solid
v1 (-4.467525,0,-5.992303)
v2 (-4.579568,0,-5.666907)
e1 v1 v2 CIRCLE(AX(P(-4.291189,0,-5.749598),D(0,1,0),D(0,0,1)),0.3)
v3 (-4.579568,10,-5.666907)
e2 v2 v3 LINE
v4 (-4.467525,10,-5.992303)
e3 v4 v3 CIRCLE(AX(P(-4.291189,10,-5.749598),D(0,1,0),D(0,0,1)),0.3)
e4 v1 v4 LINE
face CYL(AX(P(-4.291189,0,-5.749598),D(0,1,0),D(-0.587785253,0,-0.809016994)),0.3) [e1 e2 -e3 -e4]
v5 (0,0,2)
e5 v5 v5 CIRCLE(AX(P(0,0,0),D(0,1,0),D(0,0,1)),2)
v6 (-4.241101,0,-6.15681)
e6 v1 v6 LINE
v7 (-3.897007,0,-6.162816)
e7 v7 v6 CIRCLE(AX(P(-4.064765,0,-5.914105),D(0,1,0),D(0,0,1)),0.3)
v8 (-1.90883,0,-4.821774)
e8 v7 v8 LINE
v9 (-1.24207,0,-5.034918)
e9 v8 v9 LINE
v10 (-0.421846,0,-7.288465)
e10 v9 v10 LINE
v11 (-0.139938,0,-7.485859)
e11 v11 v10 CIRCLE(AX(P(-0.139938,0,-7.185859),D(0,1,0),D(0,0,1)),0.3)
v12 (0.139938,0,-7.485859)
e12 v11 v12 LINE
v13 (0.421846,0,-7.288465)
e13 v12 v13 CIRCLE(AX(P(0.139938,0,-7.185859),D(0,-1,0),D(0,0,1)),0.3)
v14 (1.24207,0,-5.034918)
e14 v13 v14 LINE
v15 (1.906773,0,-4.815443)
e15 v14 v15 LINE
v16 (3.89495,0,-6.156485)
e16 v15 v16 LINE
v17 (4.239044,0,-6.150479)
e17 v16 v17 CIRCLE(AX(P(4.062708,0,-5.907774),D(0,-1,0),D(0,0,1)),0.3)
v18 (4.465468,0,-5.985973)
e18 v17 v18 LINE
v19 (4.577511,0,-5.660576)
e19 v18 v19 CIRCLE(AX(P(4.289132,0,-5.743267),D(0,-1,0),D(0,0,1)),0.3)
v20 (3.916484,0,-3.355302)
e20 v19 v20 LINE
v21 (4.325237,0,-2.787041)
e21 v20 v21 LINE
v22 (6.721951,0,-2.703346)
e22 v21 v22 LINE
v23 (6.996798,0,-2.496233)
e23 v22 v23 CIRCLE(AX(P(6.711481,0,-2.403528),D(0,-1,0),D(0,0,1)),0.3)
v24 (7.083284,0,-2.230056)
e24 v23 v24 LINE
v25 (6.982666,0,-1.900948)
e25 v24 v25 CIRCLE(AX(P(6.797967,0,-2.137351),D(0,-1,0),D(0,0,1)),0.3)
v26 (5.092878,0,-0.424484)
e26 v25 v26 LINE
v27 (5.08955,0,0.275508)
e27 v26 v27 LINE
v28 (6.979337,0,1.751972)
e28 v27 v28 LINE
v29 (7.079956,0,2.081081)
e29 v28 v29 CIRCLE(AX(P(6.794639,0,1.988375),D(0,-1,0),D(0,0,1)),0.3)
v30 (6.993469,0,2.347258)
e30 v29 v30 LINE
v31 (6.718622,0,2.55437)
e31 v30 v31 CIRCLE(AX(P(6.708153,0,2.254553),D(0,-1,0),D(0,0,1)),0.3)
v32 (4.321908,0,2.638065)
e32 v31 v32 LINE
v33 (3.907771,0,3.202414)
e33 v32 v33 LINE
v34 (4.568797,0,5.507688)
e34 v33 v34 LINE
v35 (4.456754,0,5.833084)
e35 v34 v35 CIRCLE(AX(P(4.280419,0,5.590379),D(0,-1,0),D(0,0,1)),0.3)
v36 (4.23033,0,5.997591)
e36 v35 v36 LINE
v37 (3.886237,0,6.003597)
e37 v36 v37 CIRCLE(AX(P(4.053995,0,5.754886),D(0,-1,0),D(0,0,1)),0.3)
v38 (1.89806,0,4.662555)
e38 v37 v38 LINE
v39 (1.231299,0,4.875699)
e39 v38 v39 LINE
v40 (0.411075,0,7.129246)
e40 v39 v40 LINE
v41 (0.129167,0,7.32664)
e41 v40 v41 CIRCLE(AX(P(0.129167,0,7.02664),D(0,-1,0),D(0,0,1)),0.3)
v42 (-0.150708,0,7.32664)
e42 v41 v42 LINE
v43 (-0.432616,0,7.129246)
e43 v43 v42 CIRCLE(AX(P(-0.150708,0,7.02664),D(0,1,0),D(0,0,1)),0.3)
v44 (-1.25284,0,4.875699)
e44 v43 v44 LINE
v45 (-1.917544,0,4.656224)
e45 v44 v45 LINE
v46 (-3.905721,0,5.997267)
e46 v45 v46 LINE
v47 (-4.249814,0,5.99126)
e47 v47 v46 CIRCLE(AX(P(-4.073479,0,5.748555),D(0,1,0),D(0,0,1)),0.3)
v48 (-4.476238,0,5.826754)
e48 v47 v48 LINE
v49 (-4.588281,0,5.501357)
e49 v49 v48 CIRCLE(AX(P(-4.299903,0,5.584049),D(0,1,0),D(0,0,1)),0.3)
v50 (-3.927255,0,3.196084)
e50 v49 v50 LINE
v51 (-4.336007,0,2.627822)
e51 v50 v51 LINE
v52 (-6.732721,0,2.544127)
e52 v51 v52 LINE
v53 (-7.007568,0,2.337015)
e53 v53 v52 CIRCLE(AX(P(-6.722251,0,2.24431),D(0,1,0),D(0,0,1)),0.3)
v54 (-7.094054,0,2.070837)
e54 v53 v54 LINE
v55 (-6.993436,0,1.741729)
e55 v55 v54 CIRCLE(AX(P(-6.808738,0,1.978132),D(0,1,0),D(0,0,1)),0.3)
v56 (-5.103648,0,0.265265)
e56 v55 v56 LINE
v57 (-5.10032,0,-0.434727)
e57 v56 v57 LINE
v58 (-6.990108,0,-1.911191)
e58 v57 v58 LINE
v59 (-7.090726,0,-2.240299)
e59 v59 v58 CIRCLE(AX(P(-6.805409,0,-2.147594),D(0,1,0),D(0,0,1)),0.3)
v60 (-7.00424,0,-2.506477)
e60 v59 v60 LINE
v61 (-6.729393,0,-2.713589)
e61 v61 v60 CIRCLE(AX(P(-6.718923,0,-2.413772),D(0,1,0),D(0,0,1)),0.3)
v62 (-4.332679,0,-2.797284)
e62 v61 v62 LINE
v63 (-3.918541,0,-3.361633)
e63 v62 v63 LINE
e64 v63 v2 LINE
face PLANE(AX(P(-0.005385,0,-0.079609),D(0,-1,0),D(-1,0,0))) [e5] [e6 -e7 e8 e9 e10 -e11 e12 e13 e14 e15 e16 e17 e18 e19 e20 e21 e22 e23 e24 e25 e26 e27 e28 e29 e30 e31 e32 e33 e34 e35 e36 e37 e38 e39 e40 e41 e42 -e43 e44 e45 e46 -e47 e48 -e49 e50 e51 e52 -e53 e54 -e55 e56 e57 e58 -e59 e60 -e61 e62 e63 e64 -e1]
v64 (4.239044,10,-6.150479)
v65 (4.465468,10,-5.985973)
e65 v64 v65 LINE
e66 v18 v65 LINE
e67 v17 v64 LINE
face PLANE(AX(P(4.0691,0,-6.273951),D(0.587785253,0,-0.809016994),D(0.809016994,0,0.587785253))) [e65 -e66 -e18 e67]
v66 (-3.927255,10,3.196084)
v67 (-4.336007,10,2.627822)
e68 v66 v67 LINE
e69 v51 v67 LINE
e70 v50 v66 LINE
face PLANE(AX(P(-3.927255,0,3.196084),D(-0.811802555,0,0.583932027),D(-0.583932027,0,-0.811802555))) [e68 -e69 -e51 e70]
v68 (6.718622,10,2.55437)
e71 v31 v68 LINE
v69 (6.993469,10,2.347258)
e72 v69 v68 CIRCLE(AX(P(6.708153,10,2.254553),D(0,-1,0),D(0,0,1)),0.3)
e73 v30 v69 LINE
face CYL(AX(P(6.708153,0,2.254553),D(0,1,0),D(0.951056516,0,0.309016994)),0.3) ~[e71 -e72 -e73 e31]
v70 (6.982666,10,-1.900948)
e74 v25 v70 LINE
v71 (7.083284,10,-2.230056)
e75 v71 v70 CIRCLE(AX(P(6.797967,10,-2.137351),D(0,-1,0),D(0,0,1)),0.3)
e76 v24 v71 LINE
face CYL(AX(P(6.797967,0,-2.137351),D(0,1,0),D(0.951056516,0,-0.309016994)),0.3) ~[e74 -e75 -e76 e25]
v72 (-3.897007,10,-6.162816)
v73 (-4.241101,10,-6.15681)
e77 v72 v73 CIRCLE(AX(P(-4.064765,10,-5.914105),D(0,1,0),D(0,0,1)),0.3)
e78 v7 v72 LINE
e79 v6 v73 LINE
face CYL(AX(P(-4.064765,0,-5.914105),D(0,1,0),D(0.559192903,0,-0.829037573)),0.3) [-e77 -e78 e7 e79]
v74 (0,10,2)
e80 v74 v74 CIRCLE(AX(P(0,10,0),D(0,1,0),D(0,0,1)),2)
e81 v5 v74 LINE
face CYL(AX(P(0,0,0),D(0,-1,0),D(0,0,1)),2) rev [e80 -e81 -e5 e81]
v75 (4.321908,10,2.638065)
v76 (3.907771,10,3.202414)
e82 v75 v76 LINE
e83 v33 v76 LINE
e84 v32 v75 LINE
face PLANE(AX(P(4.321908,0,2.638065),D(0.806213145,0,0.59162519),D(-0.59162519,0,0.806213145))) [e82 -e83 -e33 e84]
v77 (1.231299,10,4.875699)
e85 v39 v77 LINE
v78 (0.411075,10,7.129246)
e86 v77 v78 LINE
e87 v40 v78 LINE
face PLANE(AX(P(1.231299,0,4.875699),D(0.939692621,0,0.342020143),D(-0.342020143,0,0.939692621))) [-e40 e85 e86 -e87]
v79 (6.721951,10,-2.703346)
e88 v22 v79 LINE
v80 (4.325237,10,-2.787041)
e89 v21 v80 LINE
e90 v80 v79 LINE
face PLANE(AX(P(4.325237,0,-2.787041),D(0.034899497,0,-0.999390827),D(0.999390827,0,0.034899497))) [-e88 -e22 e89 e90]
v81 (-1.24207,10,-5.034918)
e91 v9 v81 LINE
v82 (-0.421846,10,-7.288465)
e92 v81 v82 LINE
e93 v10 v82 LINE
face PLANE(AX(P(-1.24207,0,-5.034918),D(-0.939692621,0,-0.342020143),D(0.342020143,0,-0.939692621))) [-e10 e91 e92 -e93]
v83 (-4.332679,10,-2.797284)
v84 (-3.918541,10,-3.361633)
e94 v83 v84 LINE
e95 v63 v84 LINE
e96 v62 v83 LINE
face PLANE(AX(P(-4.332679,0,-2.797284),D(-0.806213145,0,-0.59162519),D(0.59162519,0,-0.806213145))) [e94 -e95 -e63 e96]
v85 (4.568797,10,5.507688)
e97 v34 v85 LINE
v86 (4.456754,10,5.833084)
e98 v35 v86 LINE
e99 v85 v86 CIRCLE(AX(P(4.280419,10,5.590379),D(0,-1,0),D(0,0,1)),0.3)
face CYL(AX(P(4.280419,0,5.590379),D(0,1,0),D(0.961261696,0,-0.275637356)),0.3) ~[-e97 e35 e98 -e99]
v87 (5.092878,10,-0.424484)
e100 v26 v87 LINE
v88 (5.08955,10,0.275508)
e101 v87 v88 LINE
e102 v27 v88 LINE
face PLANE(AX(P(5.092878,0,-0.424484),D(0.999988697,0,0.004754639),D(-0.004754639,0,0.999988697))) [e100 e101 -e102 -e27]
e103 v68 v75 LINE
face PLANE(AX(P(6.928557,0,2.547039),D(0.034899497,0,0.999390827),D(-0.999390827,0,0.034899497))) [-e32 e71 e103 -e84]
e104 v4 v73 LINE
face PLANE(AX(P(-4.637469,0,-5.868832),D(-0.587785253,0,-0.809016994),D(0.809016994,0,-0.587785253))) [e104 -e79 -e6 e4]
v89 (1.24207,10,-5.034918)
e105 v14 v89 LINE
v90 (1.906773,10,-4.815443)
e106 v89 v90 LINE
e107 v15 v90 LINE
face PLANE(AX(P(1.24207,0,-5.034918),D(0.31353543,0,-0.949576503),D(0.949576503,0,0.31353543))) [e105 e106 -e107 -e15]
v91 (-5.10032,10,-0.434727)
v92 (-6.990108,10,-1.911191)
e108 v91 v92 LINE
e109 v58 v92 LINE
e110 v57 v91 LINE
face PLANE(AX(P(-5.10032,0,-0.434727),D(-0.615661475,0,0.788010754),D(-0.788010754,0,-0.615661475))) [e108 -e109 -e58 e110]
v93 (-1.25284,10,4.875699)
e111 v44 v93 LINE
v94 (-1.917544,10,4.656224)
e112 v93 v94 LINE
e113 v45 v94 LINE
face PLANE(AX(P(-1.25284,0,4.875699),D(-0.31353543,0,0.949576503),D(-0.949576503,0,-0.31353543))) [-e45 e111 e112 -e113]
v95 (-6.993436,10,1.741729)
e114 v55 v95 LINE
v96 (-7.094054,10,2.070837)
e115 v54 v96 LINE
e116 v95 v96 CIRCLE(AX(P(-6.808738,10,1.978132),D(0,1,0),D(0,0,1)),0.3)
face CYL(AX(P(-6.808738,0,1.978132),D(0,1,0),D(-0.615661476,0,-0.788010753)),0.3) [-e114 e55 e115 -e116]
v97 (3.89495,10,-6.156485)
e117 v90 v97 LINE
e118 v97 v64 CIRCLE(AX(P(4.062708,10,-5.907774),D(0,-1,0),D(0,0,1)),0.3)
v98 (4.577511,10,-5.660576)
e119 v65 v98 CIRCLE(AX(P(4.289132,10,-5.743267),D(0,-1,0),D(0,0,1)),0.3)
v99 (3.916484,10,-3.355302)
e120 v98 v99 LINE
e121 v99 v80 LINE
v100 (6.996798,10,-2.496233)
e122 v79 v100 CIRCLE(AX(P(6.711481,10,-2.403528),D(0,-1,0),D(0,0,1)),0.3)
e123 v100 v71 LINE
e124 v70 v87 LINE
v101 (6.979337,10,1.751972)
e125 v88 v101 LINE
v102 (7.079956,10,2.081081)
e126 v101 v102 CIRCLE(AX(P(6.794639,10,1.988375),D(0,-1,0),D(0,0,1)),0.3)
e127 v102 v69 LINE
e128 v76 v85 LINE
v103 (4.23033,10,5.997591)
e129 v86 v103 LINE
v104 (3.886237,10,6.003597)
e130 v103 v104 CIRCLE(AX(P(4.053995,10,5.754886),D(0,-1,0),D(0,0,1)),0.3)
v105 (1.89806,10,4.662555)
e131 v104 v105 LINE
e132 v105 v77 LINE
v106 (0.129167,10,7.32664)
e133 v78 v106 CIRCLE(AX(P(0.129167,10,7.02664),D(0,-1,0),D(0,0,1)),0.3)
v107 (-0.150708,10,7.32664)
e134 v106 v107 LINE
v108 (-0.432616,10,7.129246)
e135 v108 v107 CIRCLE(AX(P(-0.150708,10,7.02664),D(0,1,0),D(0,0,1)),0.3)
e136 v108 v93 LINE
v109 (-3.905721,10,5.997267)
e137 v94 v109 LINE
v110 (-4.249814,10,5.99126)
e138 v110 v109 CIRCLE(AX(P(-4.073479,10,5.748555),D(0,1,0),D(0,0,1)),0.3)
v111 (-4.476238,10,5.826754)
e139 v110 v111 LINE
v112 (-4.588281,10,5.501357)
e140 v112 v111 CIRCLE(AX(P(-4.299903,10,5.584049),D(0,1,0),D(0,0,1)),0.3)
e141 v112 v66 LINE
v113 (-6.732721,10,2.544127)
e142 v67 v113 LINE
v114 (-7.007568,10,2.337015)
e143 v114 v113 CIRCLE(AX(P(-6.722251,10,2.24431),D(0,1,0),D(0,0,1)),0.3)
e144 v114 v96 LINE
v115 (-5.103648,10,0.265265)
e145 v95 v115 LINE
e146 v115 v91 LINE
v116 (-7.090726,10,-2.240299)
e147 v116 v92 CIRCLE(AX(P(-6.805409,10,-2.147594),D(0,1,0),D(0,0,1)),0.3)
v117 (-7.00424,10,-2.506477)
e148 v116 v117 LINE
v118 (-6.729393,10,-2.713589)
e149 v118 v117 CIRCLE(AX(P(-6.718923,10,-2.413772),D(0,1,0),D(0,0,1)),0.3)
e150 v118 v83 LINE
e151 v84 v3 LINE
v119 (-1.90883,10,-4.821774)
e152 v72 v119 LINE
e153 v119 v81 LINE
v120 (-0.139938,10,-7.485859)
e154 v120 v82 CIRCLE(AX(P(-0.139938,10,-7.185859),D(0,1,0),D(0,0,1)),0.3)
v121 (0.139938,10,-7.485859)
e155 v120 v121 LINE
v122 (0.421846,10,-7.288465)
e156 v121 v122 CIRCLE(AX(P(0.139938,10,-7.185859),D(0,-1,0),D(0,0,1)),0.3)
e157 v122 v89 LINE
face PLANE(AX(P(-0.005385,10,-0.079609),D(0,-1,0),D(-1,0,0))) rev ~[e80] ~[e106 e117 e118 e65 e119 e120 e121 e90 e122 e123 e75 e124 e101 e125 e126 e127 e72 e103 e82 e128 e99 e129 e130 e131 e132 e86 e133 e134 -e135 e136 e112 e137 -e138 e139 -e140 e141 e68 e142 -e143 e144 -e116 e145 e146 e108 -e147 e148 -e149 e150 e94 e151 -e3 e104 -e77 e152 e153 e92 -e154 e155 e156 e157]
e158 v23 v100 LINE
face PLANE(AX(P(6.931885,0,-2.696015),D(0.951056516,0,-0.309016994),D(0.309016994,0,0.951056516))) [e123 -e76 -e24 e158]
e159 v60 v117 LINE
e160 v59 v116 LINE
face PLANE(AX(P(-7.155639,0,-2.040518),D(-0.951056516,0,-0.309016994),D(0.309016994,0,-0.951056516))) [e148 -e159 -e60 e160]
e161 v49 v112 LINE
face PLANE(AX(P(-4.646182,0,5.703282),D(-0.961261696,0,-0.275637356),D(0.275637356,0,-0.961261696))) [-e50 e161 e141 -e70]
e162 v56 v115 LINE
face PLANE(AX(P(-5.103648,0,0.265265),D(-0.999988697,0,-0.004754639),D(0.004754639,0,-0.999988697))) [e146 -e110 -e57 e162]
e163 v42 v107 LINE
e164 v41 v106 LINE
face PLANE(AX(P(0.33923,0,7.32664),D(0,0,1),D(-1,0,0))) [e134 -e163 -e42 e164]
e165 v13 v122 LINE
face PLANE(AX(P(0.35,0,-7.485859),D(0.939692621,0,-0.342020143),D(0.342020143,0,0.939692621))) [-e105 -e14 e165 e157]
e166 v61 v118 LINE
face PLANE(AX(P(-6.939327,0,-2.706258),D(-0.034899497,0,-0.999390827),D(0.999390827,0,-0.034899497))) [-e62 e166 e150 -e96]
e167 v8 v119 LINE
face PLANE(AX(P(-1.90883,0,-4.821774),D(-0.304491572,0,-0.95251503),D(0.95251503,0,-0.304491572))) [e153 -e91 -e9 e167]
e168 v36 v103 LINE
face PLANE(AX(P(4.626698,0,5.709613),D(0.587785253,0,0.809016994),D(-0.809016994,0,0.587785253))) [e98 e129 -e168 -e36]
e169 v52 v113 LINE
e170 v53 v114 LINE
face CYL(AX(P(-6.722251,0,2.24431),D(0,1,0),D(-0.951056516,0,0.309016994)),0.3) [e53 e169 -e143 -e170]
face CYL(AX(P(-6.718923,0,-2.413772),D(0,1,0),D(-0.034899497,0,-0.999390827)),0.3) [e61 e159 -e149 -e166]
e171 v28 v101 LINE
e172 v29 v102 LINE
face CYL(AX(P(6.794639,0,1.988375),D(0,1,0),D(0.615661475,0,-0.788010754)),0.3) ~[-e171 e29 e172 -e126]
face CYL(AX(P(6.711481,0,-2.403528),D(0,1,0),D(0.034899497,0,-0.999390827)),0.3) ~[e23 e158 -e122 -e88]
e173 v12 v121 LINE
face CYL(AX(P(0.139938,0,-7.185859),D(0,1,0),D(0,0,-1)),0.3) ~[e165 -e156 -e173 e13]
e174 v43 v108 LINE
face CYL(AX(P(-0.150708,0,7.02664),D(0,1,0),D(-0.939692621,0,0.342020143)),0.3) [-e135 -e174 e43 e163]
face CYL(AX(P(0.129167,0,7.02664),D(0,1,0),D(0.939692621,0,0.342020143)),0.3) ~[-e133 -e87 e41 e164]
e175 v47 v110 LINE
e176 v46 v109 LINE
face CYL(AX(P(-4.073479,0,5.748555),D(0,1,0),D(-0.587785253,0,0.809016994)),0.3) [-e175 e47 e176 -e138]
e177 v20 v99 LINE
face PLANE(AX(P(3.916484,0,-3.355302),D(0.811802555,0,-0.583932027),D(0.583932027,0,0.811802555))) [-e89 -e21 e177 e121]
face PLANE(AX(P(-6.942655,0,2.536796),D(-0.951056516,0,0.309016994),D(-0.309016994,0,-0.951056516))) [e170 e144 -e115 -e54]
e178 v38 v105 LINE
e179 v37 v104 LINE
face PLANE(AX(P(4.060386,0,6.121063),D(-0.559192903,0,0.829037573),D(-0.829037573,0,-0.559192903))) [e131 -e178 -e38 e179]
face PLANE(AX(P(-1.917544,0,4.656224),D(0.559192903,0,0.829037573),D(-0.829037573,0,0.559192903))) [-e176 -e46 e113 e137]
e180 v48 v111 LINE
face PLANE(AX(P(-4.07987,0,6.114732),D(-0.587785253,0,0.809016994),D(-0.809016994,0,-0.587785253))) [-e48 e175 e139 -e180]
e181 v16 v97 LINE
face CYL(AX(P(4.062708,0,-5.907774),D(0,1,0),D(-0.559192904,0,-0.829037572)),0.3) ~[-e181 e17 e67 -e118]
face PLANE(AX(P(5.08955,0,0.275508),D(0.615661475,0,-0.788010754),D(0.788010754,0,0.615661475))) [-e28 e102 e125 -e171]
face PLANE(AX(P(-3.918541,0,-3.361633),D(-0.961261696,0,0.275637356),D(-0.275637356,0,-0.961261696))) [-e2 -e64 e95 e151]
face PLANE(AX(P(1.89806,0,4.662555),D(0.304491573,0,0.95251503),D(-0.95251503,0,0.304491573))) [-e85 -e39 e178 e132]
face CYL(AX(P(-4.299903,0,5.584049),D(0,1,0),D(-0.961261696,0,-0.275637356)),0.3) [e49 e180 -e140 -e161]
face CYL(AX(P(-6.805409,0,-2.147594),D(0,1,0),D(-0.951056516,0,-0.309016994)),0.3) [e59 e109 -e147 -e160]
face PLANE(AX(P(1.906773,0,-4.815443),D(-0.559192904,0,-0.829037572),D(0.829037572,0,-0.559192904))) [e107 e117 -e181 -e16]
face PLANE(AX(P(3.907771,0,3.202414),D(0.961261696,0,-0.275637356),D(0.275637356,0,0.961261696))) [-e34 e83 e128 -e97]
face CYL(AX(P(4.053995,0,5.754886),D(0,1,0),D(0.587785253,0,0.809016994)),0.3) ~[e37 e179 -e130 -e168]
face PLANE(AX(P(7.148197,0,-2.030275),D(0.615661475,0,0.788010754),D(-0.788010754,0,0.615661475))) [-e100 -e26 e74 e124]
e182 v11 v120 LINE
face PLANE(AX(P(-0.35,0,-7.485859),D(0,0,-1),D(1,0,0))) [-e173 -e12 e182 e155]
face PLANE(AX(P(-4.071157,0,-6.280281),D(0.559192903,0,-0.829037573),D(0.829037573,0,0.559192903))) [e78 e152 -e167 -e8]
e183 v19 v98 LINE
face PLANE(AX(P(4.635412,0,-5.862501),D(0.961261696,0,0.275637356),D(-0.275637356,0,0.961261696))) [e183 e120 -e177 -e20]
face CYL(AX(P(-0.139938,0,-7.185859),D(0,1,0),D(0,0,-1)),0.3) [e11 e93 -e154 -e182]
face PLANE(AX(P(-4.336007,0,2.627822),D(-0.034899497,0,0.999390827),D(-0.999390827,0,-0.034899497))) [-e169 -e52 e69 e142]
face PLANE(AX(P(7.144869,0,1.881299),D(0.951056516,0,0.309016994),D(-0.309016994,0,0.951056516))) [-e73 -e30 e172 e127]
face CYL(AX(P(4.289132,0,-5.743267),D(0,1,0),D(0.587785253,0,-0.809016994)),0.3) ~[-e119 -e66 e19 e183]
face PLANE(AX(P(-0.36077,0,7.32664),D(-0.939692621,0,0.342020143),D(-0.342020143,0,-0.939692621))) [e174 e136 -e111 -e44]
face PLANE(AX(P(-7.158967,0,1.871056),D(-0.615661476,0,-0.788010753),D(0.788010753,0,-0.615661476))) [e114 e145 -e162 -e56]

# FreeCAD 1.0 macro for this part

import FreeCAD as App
import Part
import Sketcher
from FreeCAD import Vector
Q = App.Units.Quantity


def edges_at(feature, points):
    """Names of the edges that pass closest to the given points."""
    edges = feature.Shape.Edges
    near = lambda p: min(range(len(edges)), key=lambda i: edges[i].distToShape(Part.Vertex(*p))[0])
    return sorted({f"Edge{near(p) + 1}" for p in points})


def add_polygon(sketch, points):
    """Adds a closed chain of lines whose ends are joined by coincident constraints."""
    first, n = sketch.GeometryCount, len(points)
    for a, b in zip(points, points[1:] + points[:1]):
        sketch.addGeometry(Part.LineSegment(App.Vector(*a, 0), App.Vector(*b, 0)), False)
    for i in range(n):
        sketch.addConstraint(Sketcher.Constraint("Coincident", first + i, 2, first + (i + 1) % n, 1))

doc = App.newDocument("Part")
body = doc.addObject("PartDesign::Body", "Body")

sketch1 = body.newObject("Sketcher::SketchObject", "Sketch")
sketch1.AttachmentSupport = (doc.getObject("XZ_Plane"), [""])
sketch1.MapMode = "FlatFace"
add_polygon(sketch1, [(0.3, -7.5), (-0.3, -7.5), (-1.2, -5), (-1.9, -4.8), (-4.1, -6.3), (-4.6, -5.9), (-3.9, -3.4), (-4.3, -2.8), (-6.9, -2.7), (-7.2, -2), (-5.1, -0.4), (-5.1, 0.3), (-7.2, 1.9), (-6.9, 2.5), (-4.3, 2.6), (-3.9, 3.2), (-4.6, 5.7), (-4.1, 6.1), (-1.9, 4.7), (-1.3, 4.9), (-0.4, 7.3), (0.3, 7.3), (1.2, 4.9), (1.9, 4.7), (4.1, 6.1), (4.6, 5.7), (3.9, 3.2), (4.3, 2.6), (6.9, 2.5), (7.1, 1.9), (5.1, 0.3), (5.1, -0.4), (7.1, -2), (6.9, -2.7), (4.3, -2.8), (3.9, -3.4), (4.6, -5.9), (4.1, -6.3), (1.9, -4.8), (1.2, -5)])
sketch1.addGeometry(Part.Circle(Vector(0, 0, 0), Vector(0, 0, 1), 2), False)
sketch1.addConstraint([
    Sketcher.Constraint("Horizontal", 0),
    Sketcher.Constraint("Horizontal", 20),
    Sketcher.Constraint("Coincident", 40, 3, -1, 1),
    Sketcher.Constraint("Symmetric", 1, 2, 38, 2, -2),
    Sketcher.Constraint("Parallel", 1, 21),
    Sketcher.Constraint("Parallel", 2, 22),
    Sketcher.Constraint("Parallel", 3, 23),
    Sketcher.Constraint("Parallel", 4, 24),
    Sketcher.Constraint("Parallel", 5, 25),
    Sketcher.Constraint("Parallel", 6, 26),
    Sketcher.Constraint("Parallel", 7, 27),
    Sketcher.Constraint("Parallel", 8, 28),
    Sketcher.Constraint("Parallel", 9, 29),
    Sketcher.Constraint("Parallel", 10, 30),
    Sketcher.Constraint("Parallel", 11, 31),
    Sketcher.Constraint("Parallel", 12, 32),
    Sketcher.Constraint("Parallel", 13, 33),
    Sketcher.Constraint("Parallel", 14, 34),
    Sketcher.Constraint("Parallel", 15, 35),
    Sketcher.Constraint("Parallel", 16, 36),
    Sketcher.Constraint("Parallel", 17, 37),
    Sketcher.Constraint("Parallel", 18, 38),
    Sketcher.Constraint("Parallel", 19, 39),
    Sketcher.Constraint("Horizontal", 18, 2, 21, 2),
    Sketcher.Constraint("Equal", 0, 20),
    Sketcher.Constraint("Equal", 1, 3),
    Sketcher.Constraint("Equal", 2, 4),
    Sketcher.Constraint("Equal", 3, 5),
    Sketcher.Constraint("Equal", 4, 6),
    Sketcher.Constraint("Equal", 5, 7),
    Sketcher.Constraint("Equal", 6, 8),
    Sketcher.Constraint("Equal", 7, 9),
    Sketcher.Constraint("Equal", 8, 10),
    Sketcher.Constraint("Equal", 9, 11),
    Sketcher.Constraint("Equal", 10, 12),
    Sketcher.Constraint("Equal", 11, 13),
    Sketcher.Constraint("Equal", 12, 14),
    Sketcher.Constraint("Equal", 13, 15),
    Sketcher.Constraint("Equal", 14, 16),
    Sketcher.Constraint("Equal", 15, 17),
    Sketcher.Constraint("Equal", 16, 18),
    Sketcher.Constraint("Equal", 17, 19),
    Sketcher.Constraint("Equal", 19, 21),
    Sketcher.Constraint("Equal", 18, 22),
    Sketcher.Constraint("Equal", 21, 23),
    Sketcher.Constraint("Equal", 22, 24),
    Sketcher.Constraint("Equal", 23, 25),
    Sketcher.Constraint("Equal", 24, 26),
    Sketcher.Constraint("Equal", 25, 27),
    Sketcher.Constraint("Equal", 26, 28),
    Sketcher.Constraint("Equal", 27, 29),
    Sketcher.Constraint("Equal", 28, 30),
    Sketcher.Constraint("Equal", 29, 31),
    Sketcher.Constraint("Equal", 30, 32),
    Sketcher.Constraint("Equal", 31, 33),
    Sketcher.Constraint("Equal", 32, 34),
    Sketcher.Constraint("Equal", 33, 35),
    Sketcher.Constraint("Equal", 34, 36),
    Sketcher.Constraint("Diameter", 40, Q("4 mm")),
    Sketcher.Constraint("Angle", 1, Q("110 deg")),
    Sketcher.Constraint("Angle", 3, Q("-146 deg")),
    Sketcher.Constraint("Angle", 4, Q("144 deg")),
    Sketcher.Constraint("Angle", 5, Q("74 deg")),
    Sketcher.Constraint("Angle", 7, Q("178 deg")),
    Sketcher.Constraint("Angle", 8, Q("108 deg")),
    Sketcher.Constraint("Angle", 9, Q("38 deg")),
    Sketcher.Constraint("Angle", 11, Q("142 deg")),
    Sketcher.Constraint("Angle", 12, Q("72 deg")),
    Sketcher.Constraint("Angle", 13, Q("2 deg")),
    Sketcher.Constraint("Angle", 15, Q("106 deg")),
    Sketcher.Constraint("Angle", 16, Q("36 deg")),
    Sketcher.Constraint("Angle", 17, Q("-34 deg")),
    Sketcher.Constraint("DistanceX", 0, 2, 0, 1, Q("0.7 mm")),
    Sketcher.Constraint("Distance", 2, Q("0.7 mm")),
    Sketcher.Constraint("DistanceY", -1, 1, 18, 2, Q("4.875699 mm")),
    Sketcher.Constraint("DistanceX", -1, 1, 21, 2, Q("1.231299 mm")),
    Sketcher.Constraint("DistanceX", -1, 1, 24, 2, Q("4.626698 mm")),
    Sketcher.Constraint("DistanceY", -1, 1, 28, 2, Q("1.881299 mm")),
    Sketcher.Constraint("DistanceY", 35, 2, -1, 1, Q("5.862501 mm")),
    Sketcher.Constraint("DistanceX", -1, 1, 36, 2, Q("4.0691 mm")),
    Sketcher.Constraint("DistanceY", 4, 2, 5, 2, Q("2.507199 mm")),
])
pad1 = body.newObject("PartDesign::Pad", "Pad")
pad1.Profile = sketch1
pad1.Length = 10
pad1.Reversed = True
doc.recompute()

fillet = body.newObject("PartDesign::Fillet", "Fillet")
fillet.Base = (pad1, edges_at(pad1, [
    (-0.35, 5, -7.486),
    (0.35, 5, -7.486),
    (4.069, 5, -6.274),
    (4.635, 5, -5.863),
    (6.932, 5, -2.696),
    (7.148, 5, -2.03),
    (7.145, 5, 1.881),
    (6.929, 5, 2.547),
    (4.627, 5, 5.71),
    (4.06, 5, 6.121),
    (0.339, 5, 7.327),
    (-0.361, 5, 7.327),
    (-4.08, 5, 6.115),
    (-4.646, 5, 5.703),
    (-6.943, 5, 2.537),
    (-7.159, 5, 1.871),
    (-7.156, 5, -2.041),
    (-6.939, 5, -2.706),
    (-4.637, 5, -5.869),
    (-4.071, 5, -6.28),
]))
fillet.Radius = 0.3

doc.recompute()
